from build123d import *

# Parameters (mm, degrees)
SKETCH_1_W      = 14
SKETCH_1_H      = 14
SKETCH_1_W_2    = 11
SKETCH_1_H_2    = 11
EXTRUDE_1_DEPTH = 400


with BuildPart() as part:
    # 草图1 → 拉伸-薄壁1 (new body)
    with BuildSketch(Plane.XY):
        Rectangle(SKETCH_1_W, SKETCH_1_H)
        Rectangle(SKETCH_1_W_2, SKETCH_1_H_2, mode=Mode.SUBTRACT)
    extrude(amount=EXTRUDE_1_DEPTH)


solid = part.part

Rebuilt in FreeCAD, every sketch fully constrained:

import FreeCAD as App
import Part
import Sketcher
from FreeCAD import Vector


def add_polygon(sketch, points):
    """Adds a closed chain of lines whose ends are joined by coincident constraints."""
    first, n = sketch.GeometryCount, len(points)
    for a, b in zip(points, points[1:] + points[:1]):
        sketch.addGeometry(Part.LineSegment(App.Vector(*a, 0), App.Vector(*b, 0)), False)
    for i in range(n):
        sketch.addConstraint(Sketcher.Constraint("Coincident", first + i, 2, first + (i + 1) % n, 1))

doc = App.newDocument("Part")
params = doc.addObject("Spreadsheet::Sheet", "Params")
for row, (alias, value) in enumerate([
    ("sketch1_width", "14 mm"),
    ("sketch1_width2", "11 mm"),
    ("pad1_length", "400 mm"),
], start=1):
    params.set(f"A{row}", alias)
    params.set(f"B{row}", "=" + value)
    params.setAlias(f"B{row}", alias)

body = doc.addObject("PartDesign::Body", "Body")

# Sketch on XY plane
sketch1 = body.newObject("Sketcher::SketchObject", "Sketch")
sketch1.AttachmentSupport = (doc.getObject("XY_Plane"), [""])
sketch1.MapMode = "FlatFace"
add_polygon(sketch1, [(-7, 7), (-7, -7), (7, -7), (7, 7)])  # lines 0-3
add_polygon(sketch1, [(5.5, -5.5), (-5.5, -5.5), (-5.5, 5.5), (5.5, 5.5)])  # lines 4-7
sketch1.addConstraint(Sketcher.Constraint("Vertical", 0))
sketch1.addConstraint(Sketcher.Constraint("Horizontal", 1))
sketch1.addConstraint(Sketcher.Constraint("Vertical", 2))
sketch1.addConstraint(Sketcher.Constraint("Horizontal", 3))
sketch1.addConstraint(Sketcher.Constraint("Horizontal", 4))
sketch1.addConstraint(Sketcher.Constraint("Vertical", 5))
sketch1.addConstraint(Sketcher.Constraint("Horizontal", 6))
sketch1.addConstraint(Sketcher.Constraint("Vertical", 7))
sketch1.addConstraint(Sketcher.Constraint("Symmetric", 0, 2, 2, 2, -1, 1))
sketch1.addConstraint(Sketcher.Constraint("Symmetric", 4, 2, 6, 2, -1, 1))
sketch1.addConstraint(Sketcher.Constraint("Equal", 3, 0))
sketch1.addConstraint(Sketcher.Constraint("Equal", 6, 5))
sketch1.addConstraint(Sketcher.Constraint("DistanceX", 1, 1, 1, 2, 14.0))
sketch1.addConstraint(Sketcher.Constraint("DistanceX", 4, 2, 4, 1, 11.0))
sketch1.setExpression("Constraints[20]", "Params.sketch1_width")
sketch1.setExpression("Constraints[21]", "Params.sketch1_width2")
pad1 = body.newObject("PartDesign::Pad", "Pad")
pad1.Profile = sketch1
pad1.setExpression("Length", "Params.pad1_length")

doc.recompute()
